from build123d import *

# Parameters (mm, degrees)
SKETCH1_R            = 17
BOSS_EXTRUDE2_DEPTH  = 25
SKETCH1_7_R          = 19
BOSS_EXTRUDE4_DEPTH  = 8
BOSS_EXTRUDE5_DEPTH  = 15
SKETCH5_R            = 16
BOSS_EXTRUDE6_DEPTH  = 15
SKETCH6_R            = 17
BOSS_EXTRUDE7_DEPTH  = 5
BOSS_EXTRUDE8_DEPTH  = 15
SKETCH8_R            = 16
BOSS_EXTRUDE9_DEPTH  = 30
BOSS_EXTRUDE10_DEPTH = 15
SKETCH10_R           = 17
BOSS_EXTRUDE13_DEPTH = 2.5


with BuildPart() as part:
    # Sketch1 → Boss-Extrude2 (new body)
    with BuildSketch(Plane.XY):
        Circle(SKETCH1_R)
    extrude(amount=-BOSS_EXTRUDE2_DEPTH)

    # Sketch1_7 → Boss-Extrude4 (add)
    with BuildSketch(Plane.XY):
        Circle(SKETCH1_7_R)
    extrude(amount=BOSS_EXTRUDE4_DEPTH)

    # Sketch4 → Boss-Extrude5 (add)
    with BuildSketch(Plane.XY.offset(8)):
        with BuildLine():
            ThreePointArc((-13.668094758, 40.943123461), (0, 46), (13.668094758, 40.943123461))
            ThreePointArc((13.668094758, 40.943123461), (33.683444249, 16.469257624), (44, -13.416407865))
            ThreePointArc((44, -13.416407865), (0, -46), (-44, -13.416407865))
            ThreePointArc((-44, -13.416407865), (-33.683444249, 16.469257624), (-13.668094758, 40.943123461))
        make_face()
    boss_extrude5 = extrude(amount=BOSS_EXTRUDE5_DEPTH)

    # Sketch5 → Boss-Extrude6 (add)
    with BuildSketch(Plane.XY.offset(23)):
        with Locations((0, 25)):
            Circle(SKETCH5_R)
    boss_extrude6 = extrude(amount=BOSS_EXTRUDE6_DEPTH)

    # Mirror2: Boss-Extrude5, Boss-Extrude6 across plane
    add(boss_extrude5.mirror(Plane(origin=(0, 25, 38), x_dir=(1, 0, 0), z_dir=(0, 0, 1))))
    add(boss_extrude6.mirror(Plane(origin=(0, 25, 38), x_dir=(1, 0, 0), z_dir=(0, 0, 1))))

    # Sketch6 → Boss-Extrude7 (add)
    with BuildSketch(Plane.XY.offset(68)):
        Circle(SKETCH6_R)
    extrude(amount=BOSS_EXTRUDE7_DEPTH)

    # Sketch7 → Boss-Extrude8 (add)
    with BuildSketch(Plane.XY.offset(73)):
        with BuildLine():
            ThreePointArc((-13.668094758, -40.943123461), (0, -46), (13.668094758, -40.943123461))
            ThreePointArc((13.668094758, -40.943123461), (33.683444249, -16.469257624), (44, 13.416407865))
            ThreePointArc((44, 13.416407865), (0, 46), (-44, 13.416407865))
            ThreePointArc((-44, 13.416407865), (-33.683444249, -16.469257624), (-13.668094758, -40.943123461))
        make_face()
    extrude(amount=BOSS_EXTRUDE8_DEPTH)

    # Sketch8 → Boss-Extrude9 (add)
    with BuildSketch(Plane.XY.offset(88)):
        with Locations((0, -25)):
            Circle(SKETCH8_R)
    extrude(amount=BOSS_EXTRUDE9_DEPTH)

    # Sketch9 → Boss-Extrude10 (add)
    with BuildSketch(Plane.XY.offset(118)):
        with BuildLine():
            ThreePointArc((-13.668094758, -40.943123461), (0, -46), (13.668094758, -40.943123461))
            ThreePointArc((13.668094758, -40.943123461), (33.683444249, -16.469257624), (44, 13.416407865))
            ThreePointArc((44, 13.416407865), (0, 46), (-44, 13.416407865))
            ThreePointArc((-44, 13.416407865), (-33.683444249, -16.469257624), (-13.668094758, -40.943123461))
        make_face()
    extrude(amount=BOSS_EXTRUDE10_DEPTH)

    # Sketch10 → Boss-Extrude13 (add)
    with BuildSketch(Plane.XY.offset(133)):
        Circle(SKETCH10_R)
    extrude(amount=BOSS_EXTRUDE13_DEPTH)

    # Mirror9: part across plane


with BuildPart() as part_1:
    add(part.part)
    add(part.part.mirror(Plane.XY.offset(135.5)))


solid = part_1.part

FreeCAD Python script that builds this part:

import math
import FreeCAD as App
import Part
import Sketcher

V = App.Vector
Q = App.Units.Quantity

doc = App.newDocument("Part")
body = doc.addObject("PartDesign::Body", "Body")

sketch1 = body.newObject("Sketcher::SketchObject", "Sketch")
sketch1.AttachmentSupport = (doc.getObject("XY_Plane"), [""])
sketch1.MapMode = "FlatFace"
sketch1.addGeometry(Part.Circle(V(0, 0, 0), V(0, 0, 1), 17), False)
sketch1.addConstraint([
    Sketcher.Constraint("Coincident", 0, 3, -1, 1),
    Sketcher.Constraint("Diameter", 0, Q("34 mm")),
])
pad1 = body.newObject("PartDesign::Pad", "Pad")
pad1.Profile = sketch1
pad1.Length = 25
pad1.Reversed = True

sketch2 = body.newObject("Sketcher::SketchObject", "Sketch001")
sketch2.AttachmentSupport = (doc.getObject("XY_Plane"), [""])
sketch2.MapMode = "FlatFace"
sketch2.addGeometry(Part.Circle(V(0, 0, 0), V(0, 0, 1), 19), False)
sketch2.addConstraint([
    Sketcher.Constraint("Coincident", 0, 3, -1, 1),
    Sketcher.Constraint("Diameter", 0, Q("38 mm")),
])
pad2 = body.newObject("PartDesign::Pad", "Pad001")
pad2.Profile = sketch2
pad2.Length = 8

sketch3 = body.newObject("Sketcher::SketchObject", "Sketch002")
sketch3.AttachmentSupport = (doc.getObject("XY_Plane"), [""])
sketch3.MapMode = "FlatFace"
sketch3.AttachmentOffset = App.Placement(V(0, 0, 8), App.Rotation())
sketch3.addGeometry([
    Part.ArcOfCircle(Part.Circle(V(0, 25, 0), V(0, 0, 1), 21), math.radians(49.393401), math.radians(130.606599)),
    Part.ArcOfCircle(Part.Circle(V(44.909454, -27.384549, 0), V(0, 0, 1), 90), math.radians(130.606599), math.radians(171.071514)),
    Part.ArcOfCircle(Part.Circle(V(0, 0, 0), V(0, 0, 1), 46), math.radians(-163.042574), math.radians(-16.957426)),
    Part.ArcOfCircle(Part.Circle(V(-44.909454, -27.384549, 0), V(0, 0, 1), 90), math.radians(8.928486), math.radians(49.393401)),
], False)
sketch3.addConstraint([
    Sketcher.Constraint("Tangent", 0, 2, 1, 1),
    Sketcher.Constraint("Coincident", 1, 2, 2, 1),
    Sketcher.Constraint("Coincident", 2, 2, 3, 1),
    Sketcher.Constraint("Tangent", 3, 2, 0, 1),
    Sketcher.Constraint("Coincident", 2, 3, -1, 1),
    Sketcher.Constraint("Equal", 1, 3),
    Sketcher.Constraint("Symmetric", 1, 3, 3, 3, -2),
    Sketcher.Constraint("Radius", 0, Q("21 mm")),
    Sketcher.Constraint("Radius", 1, Q("90 mm")),
    Sketcher.Constraint("Radius", 2, Q("46 mm")),
    Sketcher.Constraint("DistanceY", -1, 1, 0, 3, Q("25 mm")),
    Sketcher.Constraint("DistanceX", 1, 2, -1, 1, Q("44 mm")),
])
pad3 = body.newObject("PartDesign::Pad", "Pad002")
pad3.Profile = sketch3
pad3.Length = 15

sketch4 = body.newObject("Sketcher::SketchObject", "Sketch003")
sketch4.AttachmentSupport = (doc.getObject("XY_Plane"), [""])
sketch4.MapMode = "FlatFace"
sketch4.AttachmentOffset = App.Placement(V(0, 0, 23), App.Rotation())
sketch4.addGeometry(Part.Circle(V(0, 25, 0), V(0, 0, 1), 16), False)
sketch4.addConstraint([
    Sketcher.Constraint("PointOnObject", 0, 3, -2),
    Sketcher.Constraint("Diameter", 0, Q("32 mm")),
    Sketcher.Constraint("DistanceY", -1, 1, 0, 3, Q("25 mm")),
])
pad4 = body.newObject("PartDesign::Pad", "Pad003")
pad4.Profile = sketch4
pad4.Length = 15
doc.recompute()

datumplane = body.newObject("PartDesign::Plane", "DatumPlane")
datumplane.AttachmentSupport = (doc.getObject("XY_Plane"), [""])
datumplane.MapMode = "FlatFace"
datumplane.AttachmentOffset = App.Placement(V(0, 0, 38), App.Rotation())
mirrored = body.newObject("PartDesign::Mirrored", "Mirrored")
mirrored.Originals = [pad3, pad4]
mirrored.MirrorPlane = (datumplane, [""])
body.Tip = mirrored

sketch5 = body.newObject("Sketcher::SketchObject", "Sketch004")
sketch5.AttachmentSupport = (doc.getObject("XY_Plane"), [""])
sketch5.MapMode = "FlatFace"
sketch5.AttachmentOffset = App.Placement(V(0, 0, 68), App.Rotation())
sketch5.addGeometry(Part.Circle(V(0, 0, 0), V(0, 0, 1), 17), False)
sketch5.addConstraint([
    Sketcher.Constraint("Coincident", 0, 3, -1, 1),
    Sketcher.Constraint("Diameter", 0, Q("34 mm")),
])
pad5 = body.newObject("PartDesign::Pad", "Pad004")
pad5.Profile = sketch5
pad5.Length = 5

sketch6 = body.newObject("Sketcher::SketchObject", "Sketch005")
sketch6.AttachmentSupport = (doc.getObject("XY_Plane"), [""])
sketch6.MapMode = "FlatFace"
sketch6.AttachmentOffset = App.Placement(V(0, 0, 73), App.Rotation())
sketch6.addGeometry([
    Part.ArcOfCircle(Part.Circle(V(0, -25, 0), V(0, 0, 1), 21), math.radians(-130.606599), math.radians(-49.393401)),
    Part.ArcOfCircle(Part.Circle(V(-44.909454, 27.384549, 0), V(0, 0, 1), 90), math.radians(-49.393401), math.radians(-8.928486)),
    Part.ArcOfCircle(Part.Circle(V(0, 0, 0), V(0, 0, 1), 46), math.radians(16.957426), math.radians(163.042574)),
    Part.ArcOfCircle(Part.Circle(V(44.909454, 27.384549, 0), V(0, 0, 1), 90), math.radians(-171.071514), math.radians(-130.606599)),
], False)
sketch6.addConstraint([
    Sketcher.Constraint("Tangent", 0, 2, 1, 1),
    Sketcher.Constraint("Coincident", 1, 2, 2, 1),
    Sketcher.Constraint("Coincident", 2, 2, 3, 1),
    Sketcher.Constraint("Tangent", 3, 2, 0, 1),
    Sketcher.Constraint("Coincident", 2, 3, -1, 1),
    Sketcher.Constraint("Equal", 1, 3),
    Sketcher.Constraint("Symmetric", 1, 3, 3, 3, -2),
    Sketcher.Constraint("Radius", 0, Q("21 mm")),
    Sketcher.Constraint("Radius", 1, Q("90 mm")),
    Sketcher.Constraint("Radius", 2, Q("46 mm")),
    Sketcher.Constraint("DistanceY", 0, 3, -1, 1, Q("25 mm")),
    Sketcher.Constraint("DistanceX", -1, 1, 1, 2, Q("44 mm")),
])
pad6 = body.newObject("PartDesign::Pad", "Pad005")
pad6.Profile = sketch6
pad6.Length = 15

sketch7 = body.newObject("Sketcher::SketchObject", "Sketch006")
sketch7.AttachmentSupport = (doc.getObject("XY_Plane"), [""])
sketch7.MapMode = "FlatFace"
sketch7.AttachmentOffset = App.Placement(V(0, 0, 88), App.Rotation())
sketch7.addGeometry(Part.Circle(V(0, -25, 0), V(0, 0, 1), 16), False)
sketch7.addConstraint([
    Sketcher.Constraint("PointOnObject", 0, 3, -2),
    Sketcher.Constraint("Diameter", 0, Q("32 mm")),
    Sketcher.Constraint("DistanceY", 0, 3, -1, 1, Q("25 mm")),
])
pad7 = body.newObject("PartDesign::Pad", "Pad006")
pad7.Profile = sketch7
pad7.Length = 30

sketch8 = body.newObject("Sketcher::SketchObject", "Sketch007")
sketch8.AttachmentSupport = (doc.getObject("XY_Plane"), [""])
sketch8.MapMode = "FlatFace"
sketch8.AttachmentOffset = App.Placement(V(0, 0, 118), App.Rotation())
sketch8.addGeometry([
    Part.ArcOfCircle(Part.Circle(V(0, -25, 0), V(0, 0, 1), 21), math.radians(-130.606599), math.radians(-49.393401)),
    Part.ArcOfCircle(Part.Circle(V(-44.909454, 27.384549, 0), V(0, 0, 1), 90), math.radians(-49.393401), math.radians(-8.928486)),
    Part.ArcOfCircle(Part.Circle(V(0, 0, 0), V(0, 0, 1), 46), math.radians(16.957426), math.radians(163.042574)),
    Part.ArcOfCircle(Part.Circle(V(44.909454, 27.384549, 0), V(0, 0, 1), 90), math.radians(-171.071514), math.radians(-130.606599)),
], False)
sketch8.addConstraint([
    Sketcher.Constraint("Tangent", 0, 2, 1, 1),
    Sketcher.Constraint("Coincident", 1, 2, 2, 1),
    Sketcher.Constraint("Coincident", 2, 2, 3, 1),
    Sketcher.Constraint("Tangent", 3, 2, 0, 1),
    Sketcher.Constraint("Coincident", 2, 3, -1, 1),
    Sketcher.Constraint("Equal", 1, 3),
    Sketcher.Constraint("Symmetric", 1, 3, 3, 3, -2),
    Sketcher.Constraint("Radius", 0, Q("21 mm")),
    Sketcher.Constraint("Radius", 1, Q("90 mm")),
    Sketcher.Constraint("Radius", 2, Q("46 mm")),
    Sketcher.Constraint("DistanceY", 0, 3, -1, 1, Q("25 mm")),
    Sketcher.Constraint("DistanceX", -1, 1, 1, 2, Q("44 mm")),
])
pad8 = body.newObject("PartDesign::Pad", "Pad007")
pad8.Profile = sketch8
pad8.Length = 15

sketch9 = body.newObject("Sketcher::SketchObject", "Sketch008")
sketch9.AttachmentSupport = (doc.getObject("XY_Plane"), [""])
sketch9.MapMode = "FlatFace"
sketch9.AttachmentOffset = App.Placement(V(0, 0, 133), App.Rotation())
sketch9.addGeometry(Part.Circle(V(0, 0, 0), V(0, 0, 1), 17), False)
sketch9.addConstraint([
    Sketcher.Constraint("Coincident", 0, 3, -1, 1),
    Sketcher.Constraint("Diameter", 0, Q("34 mm")),
])
pad9 = body.newObject("PartDesign::Pad", "Pad008")
pad9.Profile = sketch9
pad9.Length = 2.5
body2 = doc.addObject("PartDesign::Body", "Body001")
doc.recompute()

body2.BaseFeature = body
doc.recompute()

mirroring = doc.addObject("Part::Mirroring", "Mirroring")
mirroring.Source = body
mirroring.Base = V(0, 0, 135.5)
mirroring.Normal = V(0, 0, 1)
body3 = doc.addObject("PartDesign::Body", "Body002")
body3.BaseFeature = mirroring
boolean = body2.newObject("PartDesign::Boolean", "Boolean")
boolean.Type = "Fuse"
boolean.addObjects([body3])
doc.recompute()
mirroring.Visibility = False

doc.recompute()
